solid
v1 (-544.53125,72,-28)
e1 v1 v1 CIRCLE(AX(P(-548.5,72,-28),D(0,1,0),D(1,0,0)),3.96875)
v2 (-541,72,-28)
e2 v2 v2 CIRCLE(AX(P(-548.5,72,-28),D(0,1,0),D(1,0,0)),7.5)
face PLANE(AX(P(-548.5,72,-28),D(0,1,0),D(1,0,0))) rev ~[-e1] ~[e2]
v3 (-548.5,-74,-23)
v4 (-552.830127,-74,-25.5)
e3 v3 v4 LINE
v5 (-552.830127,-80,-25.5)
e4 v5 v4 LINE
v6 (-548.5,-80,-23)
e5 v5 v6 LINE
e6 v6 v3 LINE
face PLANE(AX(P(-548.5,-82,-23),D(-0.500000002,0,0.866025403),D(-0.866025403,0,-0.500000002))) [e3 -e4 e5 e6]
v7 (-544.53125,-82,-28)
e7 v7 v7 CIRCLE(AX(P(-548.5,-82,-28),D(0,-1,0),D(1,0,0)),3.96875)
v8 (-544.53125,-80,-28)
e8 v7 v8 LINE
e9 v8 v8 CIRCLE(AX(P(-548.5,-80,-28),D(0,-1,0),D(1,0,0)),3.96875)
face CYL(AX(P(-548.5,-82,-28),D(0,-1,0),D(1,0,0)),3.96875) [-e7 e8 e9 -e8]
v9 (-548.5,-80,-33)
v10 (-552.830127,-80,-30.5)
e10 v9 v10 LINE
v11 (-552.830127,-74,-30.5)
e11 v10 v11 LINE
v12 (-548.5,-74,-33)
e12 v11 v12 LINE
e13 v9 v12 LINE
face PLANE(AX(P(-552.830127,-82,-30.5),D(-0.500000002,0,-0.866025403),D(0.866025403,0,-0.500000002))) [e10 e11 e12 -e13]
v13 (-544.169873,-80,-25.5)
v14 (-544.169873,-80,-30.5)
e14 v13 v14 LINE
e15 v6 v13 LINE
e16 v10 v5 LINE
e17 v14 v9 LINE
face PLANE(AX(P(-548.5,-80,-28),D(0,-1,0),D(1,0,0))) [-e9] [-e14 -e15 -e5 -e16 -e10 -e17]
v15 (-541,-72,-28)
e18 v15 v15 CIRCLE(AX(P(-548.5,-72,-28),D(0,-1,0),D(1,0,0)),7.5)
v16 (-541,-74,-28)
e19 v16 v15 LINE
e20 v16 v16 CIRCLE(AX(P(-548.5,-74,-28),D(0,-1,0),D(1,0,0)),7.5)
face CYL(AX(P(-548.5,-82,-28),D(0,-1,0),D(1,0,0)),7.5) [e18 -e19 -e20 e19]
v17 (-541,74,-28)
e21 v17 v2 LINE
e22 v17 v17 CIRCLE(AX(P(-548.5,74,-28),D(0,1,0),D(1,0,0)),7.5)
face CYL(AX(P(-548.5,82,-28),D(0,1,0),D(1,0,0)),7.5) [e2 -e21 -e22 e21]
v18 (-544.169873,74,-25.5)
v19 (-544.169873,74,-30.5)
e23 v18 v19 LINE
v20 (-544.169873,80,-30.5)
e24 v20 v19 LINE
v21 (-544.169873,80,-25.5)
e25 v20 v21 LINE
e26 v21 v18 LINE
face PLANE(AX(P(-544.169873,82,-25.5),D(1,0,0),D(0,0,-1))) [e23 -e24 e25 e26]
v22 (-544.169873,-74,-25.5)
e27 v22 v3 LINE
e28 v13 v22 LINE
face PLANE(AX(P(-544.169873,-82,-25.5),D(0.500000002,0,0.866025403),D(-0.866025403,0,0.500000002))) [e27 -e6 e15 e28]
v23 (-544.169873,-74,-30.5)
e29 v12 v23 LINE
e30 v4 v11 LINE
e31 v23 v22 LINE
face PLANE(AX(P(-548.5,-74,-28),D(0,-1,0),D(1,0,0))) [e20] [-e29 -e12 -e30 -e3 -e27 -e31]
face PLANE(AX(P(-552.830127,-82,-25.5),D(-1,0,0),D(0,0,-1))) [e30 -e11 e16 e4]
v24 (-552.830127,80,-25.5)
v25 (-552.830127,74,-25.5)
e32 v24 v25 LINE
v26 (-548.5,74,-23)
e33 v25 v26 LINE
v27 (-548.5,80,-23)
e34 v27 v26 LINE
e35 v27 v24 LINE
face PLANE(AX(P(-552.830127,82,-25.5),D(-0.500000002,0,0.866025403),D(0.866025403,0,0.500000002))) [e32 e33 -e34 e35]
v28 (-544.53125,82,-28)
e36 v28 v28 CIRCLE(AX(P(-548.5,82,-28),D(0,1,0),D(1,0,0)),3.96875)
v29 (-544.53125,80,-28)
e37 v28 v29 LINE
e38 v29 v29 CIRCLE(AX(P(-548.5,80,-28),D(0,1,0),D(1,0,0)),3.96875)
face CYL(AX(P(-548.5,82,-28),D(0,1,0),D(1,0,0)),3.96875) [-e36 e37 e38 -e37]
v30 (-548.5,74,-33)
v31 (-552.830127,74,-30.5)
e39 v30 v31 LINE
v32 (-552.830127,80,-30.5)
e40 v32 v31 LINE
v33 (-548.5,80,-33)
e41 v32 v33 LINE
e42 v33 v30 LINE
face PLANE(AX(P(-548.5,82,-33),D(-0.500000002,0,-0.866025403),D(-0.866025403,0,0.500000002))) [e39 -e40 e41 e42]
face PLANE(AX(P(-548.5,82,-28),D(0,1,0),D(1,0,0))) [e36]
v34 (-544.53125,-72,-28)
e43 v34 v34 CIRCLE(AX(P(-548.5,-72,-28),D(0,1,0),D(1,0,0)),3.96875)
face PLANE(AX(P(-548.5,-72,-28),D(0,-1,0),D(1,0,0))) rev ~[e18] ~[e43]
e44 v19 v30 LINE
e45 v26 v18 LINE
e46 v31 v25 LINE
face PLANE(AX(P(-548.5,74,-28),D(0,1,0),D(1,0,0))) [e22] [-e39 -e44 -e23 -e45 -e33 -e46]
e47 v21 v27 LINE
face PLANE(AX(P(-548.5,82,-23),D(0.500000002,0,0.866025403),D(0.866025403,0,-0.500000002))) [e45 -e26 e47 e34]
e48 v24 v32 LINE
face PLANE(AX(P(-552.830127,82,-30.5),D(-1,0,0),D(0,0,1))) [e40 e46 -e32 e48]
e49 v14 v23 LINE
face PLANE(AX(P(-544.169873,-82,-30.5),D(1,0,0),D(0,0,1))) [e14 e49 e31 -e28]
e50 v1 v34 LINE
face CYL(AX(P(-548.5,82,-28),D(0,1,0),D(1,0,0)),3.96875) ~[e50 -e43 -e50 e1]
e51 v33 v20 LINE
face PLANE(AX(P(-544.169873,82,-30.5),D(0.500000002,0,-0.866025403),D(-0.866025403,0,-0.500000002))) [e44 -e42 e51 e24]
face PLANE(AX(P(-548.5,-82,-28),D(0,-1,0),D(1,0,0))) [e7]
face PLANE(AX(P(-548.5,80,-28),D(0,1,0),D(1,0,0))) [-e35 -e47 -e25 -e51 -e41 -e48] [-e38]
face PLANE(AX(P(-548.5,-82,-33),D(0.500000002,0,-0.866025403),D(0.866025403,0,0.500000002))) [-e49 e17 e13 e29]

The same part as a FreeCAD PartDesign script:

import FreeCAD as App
import Part
import Sketcher
Q = App.Units.Quantity

doc = App.newDocument("Part")
body = doc.addObject("PartDesign::Body", "Body")

# Sketch on XZ plane
sketch1 = doc.addObject("Sketcher::SketchObject", "Sketch")
body.addObject(sketch1)
sketch1.AttachmentSupport = (doc.XZ_Plane, [""])
sketch1.MapMode = "FlatFace"
sketch1.AttachmentOffset = App.Placement(App.Vector(0, 0, -82), App.Rotation())
sketch1.addGeometry(Part.Circle(App.Vector(500, 56, 0), App.Vector(0, 0, 1), 4), False)
sketch1.addConstraint(Sketcher.Constraint("DistanceX", -1, 1, 0, 3, 500.0))
sketch1.addConstraint(Sketcher.Constraint("DistanceY", -1, 1, 0, 3, 56.0))
sketch1.addConstraint(Sketcher.Constraint("Diameter", 0, 7.9375))
pad1 = doc.addObject("PartDesign::Pad", "Pad")
body.addObject(pad1)
pad1.Profile = sketch1
pad1.Length = 164

# Sketch on XZ plane
sketch2 = doc.addObject("Sketcher::SketchObject", "Sketch001")
body.addObject(sketch2)
sketch2.AttachmentSupport = (doc.XZ_Plane, [""])
sketch2.MapMode = "FlatFace"
sketch2.AttachmentOffset = App.Placement(App.Vector(0, 0, -82), App.Rotation())
sketch2.addGeometry(Part.Circle(App.Vector(500, 56, 0), App.Vector(0, 0, 1), 8), False)
sketch2.addConstraint(Sketcher.Constraint("Diameter", 0, 15.0))
sketch2.addConstraint(Sketcher.Constraint("DistanceX", -1, 1, 0, 3, 500.0))
sketch2.addConstraint(Sketcher.Constraint("DistanceY", -1, 1, 0, 3, 56.0))
pad2 = doc.addObject("PartDesign::Pad", "Pad001")
body.addObject(pad2)
pad2.Profile = sketch2
pad2.Length = 10

# Sketch on XZ plane
sketch3 = doc.addObject("Sketcher::SketchObject", "Sketch002")
body.addObject(sketch3)
sketch3.AttachmentSupport = (doc.XZ_Plane, [""])
sketch3.MapMode = "FlatFace"
sketch3.AttachmentOffset = App.Placement(App.Vector(0, 0, -82), App.Rotation())
sketch3.addGeometry(Part.Circle(App.Vector(500, 56, 0), App.Vector(0, 0, 1), 7.5), False)
sketch3.addGeometry(Part.LineSegment(App.Vector(495.7, 53.5, 0), App.Vector(500, 51, 0)), False)
sketch3.addGeometry(Part.LineSegment(App.Vector(500, 51, 0), App.Vector(504.3, 53.5, 0)), False)
sketch3.addGeometry(Part.LineSegment(App.Vector(504.3, 53.5, 0), App.Vector(504.3, 58.5, 0)), False)
sketch3.addGeometry(Part.LineSegment(App.Vector(504.3, 58.5, 0), App.Vector(500, 61, 0)), False)
sketch3.addGeometry(Part.LineSegment(App.Vector(500, 61, 0), App.Vector(495.7, 58.5, 0)), False)
sketch3.addGeometry(Part.LineSegment(App.Vector(495.7, 58.5, 0), App.Vector(495.7, 53.5, 0)), False)
sketch3.addConstraint(Sketcher.Constraint("Coincident", 1, 2, 2, 1))
sketch3.addConstraint(Sketcher.Constraint("Coincident", 2, 2, 3, 1))
sketch3.addConstraint(Sketcher.Constraint("Coincident", 3, 2, 4, 1))
sketch3.addConstraint(Sketcher.Constraint("Coincident", 4, 2, 5, 1))
sketch3.addConstraint(Sketcher.Constraint("Coincident", 5, 2, 6, 1))
sketch3.addConstraint(Sketcher.Constraint("Coincident", 6, 2, 1, 1))
sketch3.addConstraint(Sketcher.Constraint("Vertical", 3))
sketch3.addConstraint(Sketcher.Constraint("Vertical", 6))
sketch3.addConstraint(Sketcher.Constraint("Parallel", 1, 4))
sketch3.addConstraint(Sketcher.Constraint("Parallel", 2, 5))
sketch3.addConstraint(Sketcher.Constraint("Horizontal", 3, 2, 5, 2))
sketch3.addConstraint(Sketcher.Constraint("Horizontal", 2, 2, 6, 2))
sketch3.addConstraint(Sketcher.Constraint("Vertical", 0, 3, 1, 2))
sketch3.addConstraint(Sketcher.Constraint("Vertical", 1, 2, 4, 2))
sketch3.addConstraint(Sketcher.Constraint("Diameter", 0, 15.0))
sketch3.addConstraint(Sketcher.Constraint("DistanceY", 3, 1, 3, 2, 5.0))
sketch3.addConstraint(Sketcher.Constraint("Angle", 1, Q("-30 deg")))
sketch3.addConstraint(Sketcher.Constraint("Distance", 1, 5.0))
sketch3.addConstraint(Sketcher.Constraint("DistanceX", -1, 1, 0, 3, 500.0))
sketch3.addConstraint(Sketcher.Constraint("DistanceY", -1, 1, 0, 3, 56.0))
sketch3.addConstraint(Sketcher.Constraint("DistanceY", -1, 1, 1, 2, 51.0))
pocket1 = doc.addObject("PartDesign::Pocket", "Pocket")
body.addObject(pocket1)
pocket1.Profile = sketch3
pocket1.Length = 8
pocket1.Reversed = True

# Sketch on XZ plane
sketch4 = doc.addObject("Sketcher::SketchObject", "Sketch003")
body.addObject(sketch4)
sketch4.AttachmentSupport = (doc.XZ_Plane, [""])
sketch4.MapMode = "FlatFace"
sketch4.AttachmentOffset = App.Placement(App.Vector(0, 0, -82), App.Rotation())
sketch4.addGeometry(Part.Circle(App.Vector(500, 56, 0), App.Vector(0, 0, 1), 7.5), False)
sketch4.addGeometry(Part.Circle(App.Vector(500, 56, 0), App.Vector(0, 0, 1), 4), False)
sketch4.addConstraint(Sketcher.Constraint("Coincident", 1, 3, 0, 3))
sketch4.addConstraint(Sketcher.Constraint("Diameter", 0, 15.0))
sketch4.addConstraint(Sketcher.Constraint("DistanceX", -1, 1, 0, 3, 500.0))
sketch4.addConstraint(Sketcher.Constraint("DistanceY", -1, 1, 0, 3, 56.0))
sketch4.addConstraint(Sketcher.Constraint("Diameter", 1, 7.9375))
pocket2 = doc.addObject("PartDesign::Pocket", "Pocket001")
body.addObject(pocket2)
pocket2.Profile = sketch4
pocket2.Length = 2
pocket2.Reversed = True

# Sketch on XZ plane
sketch5 = doc.addObject("Sketcher::SketchObject", "Sketch004")
body.addObject(sketch5)
sketch5.AttachmentSupport = (doc.XZ_Plane, [""])
sketch5.MapMode = "FlatFace"
sketch5.AttachmentOffset = App.Placement(App.Vector(0, 0, 82), App.Rotation())
sketch5.addGeometry(Part.Circle(App.Vector(500, 56, 0), App.Vector(0, 0, 1), 8), False)
sketch5.addConstraint(Sketcher.Constraint("Diameter", 0, 15.0))
sketch5.addConstraint(Sketcher.Constraint("DistanceX", -1, 1, 0, 3, 500.0))
sketch5.addConstraint(Sketcher.Constraint("DistanceY", -1, 1, 0, 3, 56.0))
pad3 = doc.addObject("PartDesign::Pad", "Pad002")
body.addObject(pad3)
pad3.Profile = sketch5
pad3.Length = 10
pad3.Reversed = True

# Sketch on XZ plane
sketch6 = doc.addObject("Sketcher::SketchObject", "Sketch005")
body.addObject(sketch6)
sketch6.AttachmentSupport = (doc.XZ_Plane, [""])
sketch6.MapMode = "FlatFace"
sketch6.AttachmentOffset = App.Placement(App.Vector(0, 0, 82), App.Rotation())
sketch6.addGeometry(Part.Circle(App.Vector(500, 56, 0), App.Vector(0, 0, 1), 7.5), False)
sketch6.addGeometry(Part.LineSegment(App.Vector(495.7, 58.5, 0), App.Vector(500, 61, 0)), False)
sketch6.addGeometry(Part.LineSegment(App.Vector(500, 61, 0), App.Vector(504.3, 58.5, 0)), False)
sketch6.addGeometry(Part.LineSegment(App.Vector(504.3, 58.5, 0), App.Vector(504.3, 53.5, 0)), False)
sketch6.addGeometry(Part.LineSegment(App.Vector(504.3, 53.5, 0), App.Vector(500, 51, 0)), False)
sketch6.addGeometry(Part.LineSegment(App.Vector(500, 51, 0), App.Vector(495.7, 53.5, 0)), False)
sketch6.addGeometry(Part.LineSegment(App.Vector(495.7, 53.5, 0), App.Vector(495.7, 58.5, 0)), False)
sketch6.addConstraint(Sketcher.Constraint("Coincident", 1, 2, 2, 1))
sketch6.addConstraint(Sketcher.Constraint("Coincident", 2, 2, 3, 1))
sketch6.addConstraint(Sketcher.Constraint("Coincident", 3, 2, 4, 1))
sketch6.addConstraint(Sketcher.Constraint("Coincident", 4, 2, 5, 1))
sketch6.addConstraint(Sketcher.Constraint("Coincident", 5, 2, 6, 1))
sketch6.addConstraint(Sketcher.Constraint("Coincident", 6, 2, 1, 1))
sketch6.addConstraint(Sketcher.Constraint("Vertical", 3))
sketch6.addConstraint(Sketcher.Constraint("Vertical", 6))
sketch6.addConstraint(Sketcher.Constraint("Parallel", 1, 4))
sketch6.addConstraint(Sketcher.Constraint("Parallel", 2, 5))
sketch6.addConstraint(Sketcher.Constraint("Horizontal", 3, 2, 5, 2))
sketch6.addConstraint(Sketcher.Constraint("Horizontal", 2, 2, 6, 2))
sketch6.addConstraint(Sketcher.Constraint("Vertical", 0, 3, 1, 2))
sketch6.addConstraint(Sketcher.Constraint("Vertical", 1, 2, 4, 2))
sketch6.addConstraint(Sketcher.Constraint("Diameter", 0, 15.0))
sketch6.addConstraint(Sketcher.Constraint("DistanceY", 3, 2, 3, 1, 5.0))
sketch6.addConstraint(Sketcher.Constraint("Angle", 1, Q("30 deg")))
sketch6.addConstraint(Sketcher.Constraint("Distance", 1, 5.0))
sketch6.addConstraint(Sketcher.Constraint("DistanceX", -1, 1, 0, 3, 500.0))
sketch6.addConstraint(Sketcher.Constraint("DistanceY", -1, 1, 0, 3, 56.0))
sketch6.addConstraint(Sketcher.Constraint("DistanceY", -1, 1, 1, 2, 61.0))
pocket3 = doc.addObject("PartDesign::Pocket", "Pocket002")
body.addObject(pocket3)
pocket3.Profile = sketch6
pocket3.Length = 8

# Sketch on XZ plane
sketch7 = doc.addObject("Sketcher::SketchObject", "Sketch006")
body.addObject(sketch7)
sketch7.AttachmentSupport = (doc.XZ_Plane, [""])
sketch7.MapMode = "FlatFace"
sketch7.AttachmentOffset = App.Placement(App.Vector(0, 0, 82), App.Rotation())
sketch7.addGeometry(Part.Circle(App.Vector(500, 56, 0), App.Vector(0, 0, 1), 7.5), False)
sketch7.addGeometry(Part.Circle(App.Vector(500, 56, 0), App.Vector(0, 0, 1), 4), False)
sketch7.addConstraint(Sketcher.Constraint("Coincident", 1, 3, 0, 3))
sketch7.addConstraint(Sketcher.Constraint("Diameter", 0, 15.0))
sketch7.addConstraint(Sketcher.Constraint("DistanceX", -1, 1, 0, 3, 500.0))
sketch7.addConstraint(Sketcher.Constraint("DistanceY", -1, 1, 0, 3, 56.0))
sketch7.addConstraint(Sketcher.Constraint("Diameter", 1, 7.9375))
pocket4 = doc.addObject("PartDesign::Pocket", "Pocket003")
body.addObject(pocket4)
pocket4.Profile = sketch7
pocket4.Length = 2
body2 = doc.addObject("PartDesign::Body", "Body001")
doc.recompute()

body.Placement = App.Placement(App.Vector(-1048.5, 0, -84), App.Rotation(App.Vector(0, 0, 1), 0))
boolean = doc.addObject("PartDesign::Boolean", "Boolean")
body2.addObject(boolean)
boolean.Type = "Fuse"
boolean.addObjects([body])

doc.recompute()
